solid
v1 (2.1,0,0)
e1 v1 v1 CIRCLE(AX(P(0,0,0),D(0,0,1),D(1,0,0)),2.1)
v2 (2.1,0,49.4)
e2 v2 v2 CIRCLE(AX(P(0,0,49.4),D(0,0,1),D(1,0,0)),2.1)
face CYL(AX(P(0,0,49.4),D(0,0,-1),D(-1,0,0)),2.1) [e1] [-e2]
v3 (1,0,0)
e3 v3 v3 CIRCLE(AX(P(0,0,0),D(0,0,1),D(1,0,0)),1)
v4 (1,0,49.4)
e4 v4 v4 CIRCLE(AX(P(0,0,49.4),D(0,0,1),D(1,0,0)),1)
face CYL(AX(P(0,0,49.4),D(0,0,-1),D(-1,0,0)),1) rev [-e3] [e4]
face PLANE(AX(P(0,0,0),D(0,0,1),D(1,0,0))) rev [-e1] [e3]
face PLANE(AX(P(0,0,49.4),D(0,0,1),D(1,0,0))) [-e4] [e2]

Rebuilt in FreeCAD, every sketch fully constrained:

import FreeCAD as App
import Part
import Sketcher

V = App.Vector
Q = App.Units.Quantity

doc = App.newDocument("Part")
body = doc.addObject("PartDesign::Body", "Body")

# Sketch on XY plane
sketch1 = doc.addObject("Sketcher::SketchObject", "Sketch")
body.addObject(sketch1)
sketch1.AttachmentSupport = (doc.XY_Plane, [""])
sketch1.MapMode = "FlatFace"
sketch1.addGeometry(Part.Circle(V(0, 0, 0), V(0, 0, 1), 2.1), False)
sketch1.addGeometry(Part.Circle(V(0, 0, 0), V(0, 0, 1), 1), False)
sketch1.addConstraint(Sketcher.Constraint("Coincident", 0, 3, -1, 1))
sketch1.addConstraint(Sketcher.Constraint("Coincident", 1, 3, -1, 1))
sketch1.addConstraint(Sketcher.Constraint("Diameter", 1, Q("2 mm")))
sketch1.addConstraint(Sketcher.Constraint("Diameter", 0, Q("4.2 mm")))
pad1 = doc.addObject("PartDesign::Pad", "Pad")
body.addObject(pad1)
pad1.Profile = sketch1
pad1.Length = 49.4

doc.recompute()
